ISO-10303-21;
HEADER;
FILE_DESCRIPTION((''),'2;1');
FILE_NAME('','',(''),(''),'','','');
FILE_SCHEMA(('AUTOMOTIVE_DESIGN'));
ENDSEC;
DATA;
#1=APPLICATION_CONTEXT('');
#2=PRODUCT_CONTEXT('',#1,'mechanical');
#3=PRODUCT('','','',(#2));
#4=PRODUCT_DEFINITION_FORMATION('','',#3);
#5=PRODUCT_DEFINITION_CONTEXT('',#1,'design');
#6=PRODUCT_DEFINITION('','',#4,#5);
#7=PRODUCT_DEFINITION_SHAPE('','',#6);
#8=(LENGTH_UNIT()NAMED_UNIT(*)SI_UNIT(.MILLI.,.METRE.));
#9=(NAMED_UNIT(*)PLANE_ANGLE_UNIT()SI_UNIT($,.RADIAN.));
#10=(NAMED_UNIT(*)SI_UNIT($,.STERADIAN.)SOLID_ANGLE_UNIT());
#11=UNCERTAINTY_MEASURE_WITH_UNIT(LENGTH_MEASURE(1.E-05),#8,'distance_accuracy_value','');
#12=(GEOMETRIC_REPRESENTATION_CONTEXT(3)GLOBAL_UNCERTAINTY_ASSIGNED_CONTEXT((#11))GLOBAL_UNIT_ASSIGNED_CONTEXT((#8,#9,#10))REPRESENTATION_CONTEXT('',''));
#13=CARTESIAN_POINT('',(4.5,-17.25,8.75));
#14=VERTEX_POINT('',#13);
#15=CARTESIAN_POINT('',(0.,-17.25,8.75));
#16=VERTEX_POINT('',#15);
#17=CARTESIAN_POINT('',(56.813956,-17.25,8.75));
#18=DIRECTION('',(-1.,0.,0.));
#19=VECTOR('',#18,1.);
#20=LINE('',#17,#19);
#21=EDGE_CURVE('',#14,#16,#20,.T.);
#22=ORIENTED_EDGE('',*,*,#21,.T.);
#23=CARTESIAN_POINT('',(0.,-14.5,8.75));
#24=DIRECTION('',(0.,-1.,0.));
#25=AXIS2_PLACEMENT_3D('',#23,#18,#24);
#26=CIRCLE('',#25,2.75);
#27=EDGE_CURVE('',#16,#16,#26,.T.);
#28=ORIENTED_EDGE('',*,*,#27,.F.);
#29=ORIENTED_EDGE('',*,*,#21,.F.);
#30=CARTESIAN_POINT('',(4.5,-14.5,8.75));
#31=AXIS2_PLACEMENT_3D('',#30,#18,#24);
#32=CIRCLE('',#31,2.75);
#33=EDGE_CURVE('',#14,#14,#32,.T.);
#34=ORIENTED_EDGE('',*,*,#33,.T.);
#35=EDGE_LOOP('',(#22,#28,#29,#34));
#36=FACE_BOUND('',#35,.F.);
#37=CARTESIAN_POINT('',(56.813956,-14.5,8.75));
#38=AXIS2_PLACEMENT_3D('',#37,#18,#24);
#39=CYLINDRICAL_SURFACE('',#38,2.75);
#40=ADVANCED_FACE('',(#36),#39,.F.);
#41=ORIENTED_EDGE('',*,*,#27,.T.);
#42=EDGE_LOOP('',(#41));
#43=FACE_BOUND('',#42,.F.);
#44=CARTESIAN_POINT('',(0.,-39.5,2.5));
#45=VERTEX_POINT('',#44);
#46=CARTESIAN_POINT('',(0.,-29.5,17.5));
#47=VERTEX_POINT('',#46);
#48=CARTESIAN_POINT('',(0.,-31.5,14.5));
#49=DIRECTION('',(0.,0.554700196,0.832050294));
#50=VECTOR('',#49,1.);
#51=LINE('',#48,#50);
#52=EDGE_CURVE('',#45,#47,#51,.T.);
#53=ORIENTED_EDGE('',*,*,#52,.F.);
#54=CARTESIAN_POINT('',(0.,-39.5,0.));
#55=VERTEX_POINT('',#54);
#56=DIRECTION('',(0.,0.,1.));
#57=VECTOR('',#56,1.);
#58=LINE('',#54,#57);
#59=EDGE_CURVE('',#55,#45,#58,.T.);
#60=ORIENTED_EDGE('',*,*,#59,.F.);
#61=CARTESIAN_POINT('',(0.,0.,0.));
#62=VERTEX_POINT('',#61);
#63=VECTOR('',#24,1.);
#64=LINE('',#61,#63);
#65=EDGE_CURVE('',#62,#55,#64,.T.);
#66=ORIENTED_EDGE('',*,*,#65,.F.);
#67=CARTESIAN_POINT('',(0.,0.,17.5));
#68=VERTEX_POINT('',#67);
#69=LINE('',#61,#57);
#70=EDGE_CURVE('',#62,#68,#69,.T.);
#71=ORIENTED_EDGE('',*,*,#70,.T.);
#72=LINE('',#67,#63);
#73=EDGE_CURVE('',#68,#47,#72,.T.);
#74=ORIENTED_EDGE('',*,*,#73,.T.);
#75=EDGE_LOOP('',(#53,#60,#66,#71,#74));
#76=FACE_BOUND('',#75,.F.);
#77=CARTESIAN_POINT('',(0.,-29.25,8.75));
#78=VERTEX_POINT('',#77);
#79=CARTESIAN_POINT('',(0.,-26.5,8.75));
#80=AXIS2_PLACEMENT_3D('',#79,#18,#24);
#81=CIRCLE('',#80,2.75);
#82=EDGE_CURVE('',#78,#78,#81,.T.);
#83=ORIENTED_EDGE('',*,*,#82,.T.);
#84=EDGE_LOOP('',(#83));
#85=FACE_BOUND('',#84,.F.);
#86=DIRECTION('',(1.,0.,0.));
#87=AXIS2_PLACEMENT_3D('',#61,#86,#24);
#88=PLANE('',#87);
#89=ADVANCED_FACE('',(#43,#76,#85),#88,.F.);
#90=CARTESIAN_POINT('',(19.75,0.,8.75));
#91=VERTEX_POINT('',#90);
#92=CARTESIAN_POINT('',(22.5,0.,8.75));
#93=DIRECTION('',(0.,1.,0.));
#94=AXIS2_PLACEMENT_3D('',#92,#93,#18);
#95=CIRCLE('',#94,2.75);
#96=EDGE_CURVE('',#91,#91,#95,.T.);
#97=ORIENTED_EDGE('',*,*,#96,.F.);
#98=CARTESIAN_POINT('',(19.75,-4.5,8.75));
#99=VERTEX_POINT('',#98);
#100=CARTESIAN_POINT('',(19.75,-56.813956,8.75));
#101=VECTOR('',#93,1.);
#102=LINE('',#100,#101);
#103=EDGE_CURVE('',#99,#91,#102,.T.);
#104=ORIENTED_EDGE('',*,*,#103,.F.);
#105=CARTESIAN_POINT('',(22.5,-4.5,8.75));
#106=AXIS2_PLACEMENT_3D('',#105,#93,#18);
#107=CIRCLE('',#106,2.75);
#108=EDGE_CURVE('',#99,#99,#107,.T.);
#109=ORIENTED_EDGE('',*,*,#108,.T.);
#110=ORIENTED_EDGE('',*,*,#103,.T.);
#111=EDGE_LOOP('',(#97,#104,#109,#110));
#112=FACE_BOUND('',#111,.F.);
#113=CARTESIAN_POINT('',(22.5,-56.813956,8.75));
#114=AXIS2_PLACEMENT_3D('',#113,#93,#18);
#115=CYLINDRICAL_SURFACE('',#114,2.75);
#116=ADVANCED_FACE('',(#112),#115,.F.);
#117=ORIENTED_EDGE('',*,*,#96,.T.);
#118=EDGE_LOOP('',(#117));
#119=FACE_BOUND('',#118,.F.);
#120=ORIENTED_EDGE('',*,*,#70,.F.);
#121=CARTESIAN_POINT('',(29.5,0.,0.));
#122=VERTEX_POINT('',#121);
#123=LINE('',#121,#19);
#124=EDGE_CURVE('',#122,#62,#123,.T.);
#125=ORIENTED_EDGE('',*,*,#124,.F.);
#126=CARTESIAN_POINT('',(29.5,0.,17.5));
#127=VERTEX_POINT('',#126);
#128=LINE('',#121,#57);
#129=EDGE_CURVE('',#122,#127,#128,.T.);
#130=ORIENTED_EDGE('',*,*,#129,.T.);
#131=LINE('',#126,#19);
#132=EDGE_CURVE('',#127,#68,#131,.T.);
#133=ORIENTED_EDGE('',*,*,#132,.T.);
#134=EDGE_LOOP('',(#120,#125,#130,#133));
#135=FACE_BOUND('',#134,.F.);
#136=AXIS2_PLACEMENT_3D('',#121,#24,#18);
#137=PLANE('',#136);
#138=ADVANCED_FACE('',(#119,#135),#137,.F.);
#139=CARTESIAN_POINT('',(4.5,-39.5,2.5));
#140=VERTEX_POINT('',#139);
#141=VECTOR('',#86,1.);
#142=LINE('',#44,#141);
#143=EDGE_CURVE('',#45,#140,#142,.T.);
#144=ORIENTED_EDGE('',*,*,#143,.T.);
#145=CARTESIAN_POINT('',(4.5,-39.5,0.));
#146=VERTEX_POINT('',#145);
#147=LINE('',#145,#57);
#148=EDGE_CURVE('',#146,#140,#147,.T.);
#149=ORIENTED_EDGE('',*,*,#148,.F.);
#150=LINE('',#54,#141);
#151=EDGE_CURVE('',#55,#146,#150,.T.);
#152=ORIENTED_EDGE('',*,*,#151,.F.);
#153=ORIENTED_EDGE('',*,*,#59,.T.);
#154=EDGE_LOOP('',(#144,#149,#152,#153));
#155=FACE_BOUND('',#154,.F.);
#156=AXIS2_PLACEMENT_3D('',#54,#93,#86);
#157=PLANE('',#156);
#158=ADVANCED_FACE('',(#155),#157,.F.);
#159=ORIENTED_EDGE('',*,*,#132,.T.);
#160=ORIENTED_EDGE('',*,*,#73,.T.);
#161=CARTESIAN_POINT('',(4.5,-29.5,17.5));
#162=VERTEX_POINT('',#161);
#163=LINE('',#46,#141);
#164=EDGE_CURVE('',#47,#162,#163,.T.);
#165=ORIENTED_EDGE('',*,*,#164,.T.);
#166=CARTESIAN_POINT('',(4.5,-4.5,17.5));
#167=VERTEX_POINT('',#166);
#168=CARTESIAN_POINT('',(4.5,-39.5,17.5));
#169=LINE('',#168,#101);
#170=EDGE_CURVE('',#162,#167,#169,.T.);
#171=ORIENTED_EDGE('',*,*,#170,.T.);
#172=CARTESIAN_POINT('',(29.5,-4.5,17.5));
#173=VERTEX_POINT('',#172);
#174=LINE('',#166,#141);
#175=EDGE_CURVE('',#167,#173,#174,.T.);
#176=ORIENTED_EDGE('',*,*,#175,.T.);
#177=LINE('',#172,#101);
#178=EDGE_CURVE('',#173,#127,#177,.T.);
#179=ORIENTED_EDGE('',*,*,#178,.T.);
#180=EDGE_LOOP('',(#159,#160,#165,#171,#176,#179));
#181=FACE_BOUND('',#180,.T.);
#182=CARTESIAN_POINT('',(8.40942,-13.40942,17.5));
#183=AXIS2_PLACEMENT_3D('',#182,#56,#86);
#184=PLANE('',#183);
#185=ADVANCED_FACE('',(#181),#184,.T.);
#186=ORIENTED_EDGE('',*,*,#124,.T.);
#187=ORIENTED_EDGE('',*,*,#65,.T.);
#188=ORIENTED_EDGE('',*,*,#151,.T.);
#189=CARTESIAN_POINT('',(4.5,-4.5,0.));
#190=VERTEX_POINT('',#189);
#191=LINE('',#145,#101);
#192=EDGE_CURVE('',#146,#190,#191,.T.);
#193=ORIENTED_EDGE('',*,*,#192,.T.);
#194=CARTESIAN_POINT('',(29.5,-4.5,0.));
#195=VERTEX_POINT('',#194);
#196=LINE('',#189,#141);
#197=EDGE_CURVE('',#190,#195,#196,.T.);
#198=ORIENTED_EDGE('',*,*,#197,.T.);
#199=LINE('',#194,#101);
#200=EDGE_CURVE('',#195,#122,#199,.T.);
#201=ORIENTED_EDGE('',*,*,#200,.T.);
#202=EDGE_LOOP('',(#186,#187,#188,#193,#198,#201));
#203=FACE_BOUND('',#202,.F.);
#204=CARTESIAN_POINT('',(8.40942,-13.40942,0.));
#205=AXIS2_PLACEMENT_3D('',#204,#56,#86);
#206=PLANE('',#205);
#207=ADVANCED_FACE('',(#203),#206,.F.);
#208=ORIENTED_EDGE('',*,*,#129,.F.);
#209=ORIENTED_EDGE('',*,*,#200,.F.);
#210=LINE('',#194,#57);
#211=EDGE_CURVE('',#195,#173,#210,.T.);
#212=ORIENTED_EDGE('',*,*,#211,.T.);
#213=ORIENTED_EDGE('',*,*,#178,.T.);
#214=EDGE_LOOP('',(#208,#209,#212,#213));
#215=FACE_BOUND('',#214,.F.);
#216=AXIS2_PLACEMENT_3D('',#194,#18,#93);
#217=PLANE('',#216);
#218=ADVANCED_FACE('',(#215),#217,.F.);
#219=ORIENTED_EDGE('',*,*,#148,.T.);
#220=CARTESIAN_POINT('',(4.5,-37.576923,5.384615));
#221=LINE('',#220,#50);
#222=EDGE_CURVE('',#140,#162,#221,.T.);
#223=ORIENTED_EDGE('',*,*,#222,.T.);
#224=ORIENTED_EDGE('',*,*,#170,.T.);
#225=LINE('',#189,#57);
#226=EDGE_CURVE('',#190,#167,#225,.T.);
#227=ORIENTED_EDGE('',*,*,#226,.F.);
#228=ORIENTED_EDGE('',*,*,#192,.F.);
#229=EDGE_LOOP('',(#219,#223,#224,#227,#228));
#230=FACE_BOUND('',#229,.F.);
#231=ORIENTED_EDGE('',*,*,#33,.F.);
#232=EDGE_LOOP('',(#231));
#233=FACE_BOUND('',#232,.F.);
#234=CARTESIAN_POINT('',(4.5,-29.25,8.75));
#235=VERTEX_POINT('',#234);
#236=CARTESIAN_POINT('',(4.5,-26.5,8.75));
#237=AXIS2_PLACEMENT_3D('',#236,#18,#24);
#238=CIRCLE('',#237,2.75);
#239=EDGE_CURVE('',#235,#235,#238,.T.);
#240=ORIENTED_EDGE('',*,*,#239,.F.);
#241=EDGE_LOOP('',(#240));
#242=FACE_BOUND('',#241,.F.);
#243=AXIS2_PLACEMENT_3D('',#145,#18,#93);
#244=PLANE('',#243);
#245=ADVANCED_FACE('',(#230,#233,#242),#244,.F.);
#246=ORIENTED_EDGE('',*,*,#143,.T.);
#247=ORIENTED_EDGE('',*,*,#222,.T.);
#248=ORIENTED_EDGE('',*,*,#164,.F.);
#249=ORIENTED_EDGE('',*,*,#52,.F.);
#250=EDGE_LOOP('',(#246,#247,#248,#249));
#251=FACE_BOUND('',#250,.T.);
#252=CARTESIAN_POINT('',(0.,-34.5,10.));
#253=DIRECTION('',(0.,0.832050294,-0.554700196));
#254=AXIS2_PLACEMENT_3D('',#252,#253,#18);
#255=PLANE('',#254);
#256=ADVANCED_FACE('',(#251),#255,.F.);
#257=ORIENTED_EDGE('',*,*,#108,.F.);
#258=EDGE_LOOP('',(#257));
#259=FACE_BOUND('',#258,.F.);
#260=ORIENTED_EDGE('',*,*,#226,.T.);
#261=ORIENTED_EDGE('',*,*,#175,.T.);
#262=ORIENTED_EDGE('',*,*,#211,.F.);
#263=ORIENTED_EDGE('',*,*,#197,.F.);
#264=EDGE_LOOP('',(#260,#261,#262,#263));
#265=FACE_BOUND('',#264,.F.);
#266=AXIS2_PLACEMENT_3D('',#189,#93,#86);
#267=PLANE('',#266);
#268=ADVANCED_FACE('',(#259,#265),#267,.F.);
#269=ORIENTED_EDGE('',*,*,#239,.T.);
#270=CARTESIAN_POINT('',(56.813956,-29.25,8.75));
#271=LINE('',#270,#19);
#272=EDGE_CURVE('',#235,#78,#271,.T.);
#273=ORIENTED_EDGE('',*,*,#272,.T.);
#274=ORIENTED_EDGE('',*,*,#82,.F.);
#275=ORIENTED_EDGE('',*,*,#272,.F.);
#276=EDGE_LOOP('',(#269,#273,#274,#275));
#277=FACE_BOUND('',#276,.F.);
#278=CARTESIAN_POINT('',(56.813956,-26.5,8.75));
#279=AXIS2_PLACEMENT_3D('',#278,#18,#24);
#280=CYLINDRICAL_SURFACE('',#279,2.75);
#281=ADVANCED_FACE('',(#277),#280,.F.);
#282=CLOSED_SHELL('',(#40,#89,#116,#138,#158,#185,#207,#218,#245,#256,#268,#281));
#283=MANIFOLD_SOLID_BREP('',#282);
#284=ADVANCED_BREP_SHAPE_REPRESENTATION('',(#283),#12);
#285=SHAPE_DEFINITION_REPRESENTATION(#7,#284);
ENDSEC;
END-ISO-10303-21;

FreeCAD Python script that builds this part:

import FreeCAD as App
import Part
import Sketcher
from FreeCAD import Vector


def edges_at(feature, points):
    """Names of the edges that pass closest to the given points."""
    edges = feature.Shape.Edges
    near = lambda p: min(range(len(edges)), key=lambda i: edges[i].distToShape(Part.Vertex(*p))[0])
    return sorted({f"Edge{near(p) + 1}" for p in points})


def add_polygon(sketch, points):
    """Adds a closed chain of lines whose ends are joined by coincident constraints."""
    first, n = sketch.GeometryCount, len(points)
    for a, b in zip(points, points[1:] + points[:1]):
        sketch.addGeometry(Part.LineSegment(App.Vector(*a, 0), App.Vector(*b, 0)), False)
    for i in range(n):
        sketch.addConstraint(Sketcher.Constraint("Coincident", first + i, 2, first + (i + 1) % n, 1))

doc = App.newDocument("Part")
body = doc.addObject("PartDesign::Body", "Body")

# Sketch on XY plane
sketch1 = body.newObject("Sketcher::SketchObject", "Sketch")
sketch1.AttachmentSupport = (doc.getObject("XY_Plane"), [""])
sketch1.MapMode = "FlatFace"
add_polygon(sketch1, [(29.5, 0), (0, 0), (0, -39.5), (4.5, -39.5), (4.5, -4.5), (29.5, -4.5)])  # lines 0-5
sketch1.addConstraint([
    Sketcher.Constraint("Horizontal", 0),
    Sketcher.Constraint("Vertical", 1),
    Sketcher.Constraint("Horizontal", 2),
    Sketcher.Constraint("Vertical", 3),
    Sketcher.Constraint("Horizontal", 4),
    Sketcher.Constraint("Vertical", 5),
    Sketcher.Constraint("Coincident", 0, 2, -1, 1),
    Sketcher.Constraint("Equal", 2, 5),
    Sketcher.Constraint("DistanceX", 4, 1, 4, 2, 25.0),
    Sketcher.Constraint("DistanceY", 3, 1, 3, 2, 35.0),
    Sketcher.Constraint("DistanceX", 0, 2, 0, 1, 29.5),
])
pad1 = body.newObject("PartDesign::Pad", "Pad")
pad1.Profile = sketch1
pad1.Length = 17.5

# Sketch on XZ plane
sketch2 = body.newObject("Sketcher::SketchObject", "Sketch001")
sketch2.AttachmentSupport = (doc.getObject("XZ_Plane"), [""])
sketch2.MapMode = "FlatFace"
sketch2.AttachmentOffset = App.Placement(Vector(0, 0, 4.5), App.Rotation())
sketch2.addGeometry(Part.Circle(Vector(22.5, 8.75, 0), Vector(0, 0, 1), 2.75), False)
sketch2.addConstraint([
    Sketcher.Constraint("Diameter", 0, 5.5),
    Sketcher.Constraint("DistanceX", -1, 1, 0, 3, 22.5),
    Sketcher.Constraint("DistanceY", -1, 1, 0, 3, 8.75),
])
doc.recompute()
hole = body.newObject("PartDesign::Hole", "Hole")
hole.Profile = sketch2
hole.ThreadType = "None"
hole.Diameter = 5.5
hole.DepthType = "ThroughAll"
doc.recompute()

chamfer = body.newObject("PartDesign::Chamfer", "Chamfer")
chamfer.Base = (hole, edges_at(hole, [(2.25, -39.5, 17.5)]))
chamfer.ChamferType = "Two distances"
chamfer.Size = 15
chamfer.Size2 = 10
chamfer.FlipDirection = True

# Sketch on YZ plane
sketch3 = body.newObject("Sketcher::SketchObject", "Sketch002")
sketch3.AttachmentSupport = (doc.getObject("YZ_Plane"), [""])
sketch3.MapMode = "FlatFace"
sketch3.AttachmentOffset = App.Placement(Vector(0, 0, 4.5), App.Rotation())
sketch3.addGeometry([
    Part.Circle(Vector(-14.5, 8.75, 0), Vector(0, 0, 1), 2.75),
    Part.Circle(Vector(-26.5, 8.75, 0), Vector(0, 0, 1), 2.75),
], False)
sketch3.addConstraint([
    Sketcher.Constraint("Equal", 0, 1),
    Sketcher.Constraint("Horizontal", 0, 3, 1, 3),
    Sketcher.Constraint("Diameter", 0, 5.5),
    Sketcher.Constraint("DistanceX", 1, 3, 0, 3, 12.0),
    Sketcher.Constraint("DistanceX", 0, 3, -1, 1, 14.5),
    Sketcher.Constraint("DistanceY", -1, 1, 0, 3, 8.75),
])
doc.recompute()
hole2 = body.newObject("PartDesign::Hole", "Hole001")
hole2.Profile = sketch3
hole2.ThreadType = "None"
hole2.Diameter = 5.5
hole2.DepthType = "ThroughAll"

doc.recompute()
